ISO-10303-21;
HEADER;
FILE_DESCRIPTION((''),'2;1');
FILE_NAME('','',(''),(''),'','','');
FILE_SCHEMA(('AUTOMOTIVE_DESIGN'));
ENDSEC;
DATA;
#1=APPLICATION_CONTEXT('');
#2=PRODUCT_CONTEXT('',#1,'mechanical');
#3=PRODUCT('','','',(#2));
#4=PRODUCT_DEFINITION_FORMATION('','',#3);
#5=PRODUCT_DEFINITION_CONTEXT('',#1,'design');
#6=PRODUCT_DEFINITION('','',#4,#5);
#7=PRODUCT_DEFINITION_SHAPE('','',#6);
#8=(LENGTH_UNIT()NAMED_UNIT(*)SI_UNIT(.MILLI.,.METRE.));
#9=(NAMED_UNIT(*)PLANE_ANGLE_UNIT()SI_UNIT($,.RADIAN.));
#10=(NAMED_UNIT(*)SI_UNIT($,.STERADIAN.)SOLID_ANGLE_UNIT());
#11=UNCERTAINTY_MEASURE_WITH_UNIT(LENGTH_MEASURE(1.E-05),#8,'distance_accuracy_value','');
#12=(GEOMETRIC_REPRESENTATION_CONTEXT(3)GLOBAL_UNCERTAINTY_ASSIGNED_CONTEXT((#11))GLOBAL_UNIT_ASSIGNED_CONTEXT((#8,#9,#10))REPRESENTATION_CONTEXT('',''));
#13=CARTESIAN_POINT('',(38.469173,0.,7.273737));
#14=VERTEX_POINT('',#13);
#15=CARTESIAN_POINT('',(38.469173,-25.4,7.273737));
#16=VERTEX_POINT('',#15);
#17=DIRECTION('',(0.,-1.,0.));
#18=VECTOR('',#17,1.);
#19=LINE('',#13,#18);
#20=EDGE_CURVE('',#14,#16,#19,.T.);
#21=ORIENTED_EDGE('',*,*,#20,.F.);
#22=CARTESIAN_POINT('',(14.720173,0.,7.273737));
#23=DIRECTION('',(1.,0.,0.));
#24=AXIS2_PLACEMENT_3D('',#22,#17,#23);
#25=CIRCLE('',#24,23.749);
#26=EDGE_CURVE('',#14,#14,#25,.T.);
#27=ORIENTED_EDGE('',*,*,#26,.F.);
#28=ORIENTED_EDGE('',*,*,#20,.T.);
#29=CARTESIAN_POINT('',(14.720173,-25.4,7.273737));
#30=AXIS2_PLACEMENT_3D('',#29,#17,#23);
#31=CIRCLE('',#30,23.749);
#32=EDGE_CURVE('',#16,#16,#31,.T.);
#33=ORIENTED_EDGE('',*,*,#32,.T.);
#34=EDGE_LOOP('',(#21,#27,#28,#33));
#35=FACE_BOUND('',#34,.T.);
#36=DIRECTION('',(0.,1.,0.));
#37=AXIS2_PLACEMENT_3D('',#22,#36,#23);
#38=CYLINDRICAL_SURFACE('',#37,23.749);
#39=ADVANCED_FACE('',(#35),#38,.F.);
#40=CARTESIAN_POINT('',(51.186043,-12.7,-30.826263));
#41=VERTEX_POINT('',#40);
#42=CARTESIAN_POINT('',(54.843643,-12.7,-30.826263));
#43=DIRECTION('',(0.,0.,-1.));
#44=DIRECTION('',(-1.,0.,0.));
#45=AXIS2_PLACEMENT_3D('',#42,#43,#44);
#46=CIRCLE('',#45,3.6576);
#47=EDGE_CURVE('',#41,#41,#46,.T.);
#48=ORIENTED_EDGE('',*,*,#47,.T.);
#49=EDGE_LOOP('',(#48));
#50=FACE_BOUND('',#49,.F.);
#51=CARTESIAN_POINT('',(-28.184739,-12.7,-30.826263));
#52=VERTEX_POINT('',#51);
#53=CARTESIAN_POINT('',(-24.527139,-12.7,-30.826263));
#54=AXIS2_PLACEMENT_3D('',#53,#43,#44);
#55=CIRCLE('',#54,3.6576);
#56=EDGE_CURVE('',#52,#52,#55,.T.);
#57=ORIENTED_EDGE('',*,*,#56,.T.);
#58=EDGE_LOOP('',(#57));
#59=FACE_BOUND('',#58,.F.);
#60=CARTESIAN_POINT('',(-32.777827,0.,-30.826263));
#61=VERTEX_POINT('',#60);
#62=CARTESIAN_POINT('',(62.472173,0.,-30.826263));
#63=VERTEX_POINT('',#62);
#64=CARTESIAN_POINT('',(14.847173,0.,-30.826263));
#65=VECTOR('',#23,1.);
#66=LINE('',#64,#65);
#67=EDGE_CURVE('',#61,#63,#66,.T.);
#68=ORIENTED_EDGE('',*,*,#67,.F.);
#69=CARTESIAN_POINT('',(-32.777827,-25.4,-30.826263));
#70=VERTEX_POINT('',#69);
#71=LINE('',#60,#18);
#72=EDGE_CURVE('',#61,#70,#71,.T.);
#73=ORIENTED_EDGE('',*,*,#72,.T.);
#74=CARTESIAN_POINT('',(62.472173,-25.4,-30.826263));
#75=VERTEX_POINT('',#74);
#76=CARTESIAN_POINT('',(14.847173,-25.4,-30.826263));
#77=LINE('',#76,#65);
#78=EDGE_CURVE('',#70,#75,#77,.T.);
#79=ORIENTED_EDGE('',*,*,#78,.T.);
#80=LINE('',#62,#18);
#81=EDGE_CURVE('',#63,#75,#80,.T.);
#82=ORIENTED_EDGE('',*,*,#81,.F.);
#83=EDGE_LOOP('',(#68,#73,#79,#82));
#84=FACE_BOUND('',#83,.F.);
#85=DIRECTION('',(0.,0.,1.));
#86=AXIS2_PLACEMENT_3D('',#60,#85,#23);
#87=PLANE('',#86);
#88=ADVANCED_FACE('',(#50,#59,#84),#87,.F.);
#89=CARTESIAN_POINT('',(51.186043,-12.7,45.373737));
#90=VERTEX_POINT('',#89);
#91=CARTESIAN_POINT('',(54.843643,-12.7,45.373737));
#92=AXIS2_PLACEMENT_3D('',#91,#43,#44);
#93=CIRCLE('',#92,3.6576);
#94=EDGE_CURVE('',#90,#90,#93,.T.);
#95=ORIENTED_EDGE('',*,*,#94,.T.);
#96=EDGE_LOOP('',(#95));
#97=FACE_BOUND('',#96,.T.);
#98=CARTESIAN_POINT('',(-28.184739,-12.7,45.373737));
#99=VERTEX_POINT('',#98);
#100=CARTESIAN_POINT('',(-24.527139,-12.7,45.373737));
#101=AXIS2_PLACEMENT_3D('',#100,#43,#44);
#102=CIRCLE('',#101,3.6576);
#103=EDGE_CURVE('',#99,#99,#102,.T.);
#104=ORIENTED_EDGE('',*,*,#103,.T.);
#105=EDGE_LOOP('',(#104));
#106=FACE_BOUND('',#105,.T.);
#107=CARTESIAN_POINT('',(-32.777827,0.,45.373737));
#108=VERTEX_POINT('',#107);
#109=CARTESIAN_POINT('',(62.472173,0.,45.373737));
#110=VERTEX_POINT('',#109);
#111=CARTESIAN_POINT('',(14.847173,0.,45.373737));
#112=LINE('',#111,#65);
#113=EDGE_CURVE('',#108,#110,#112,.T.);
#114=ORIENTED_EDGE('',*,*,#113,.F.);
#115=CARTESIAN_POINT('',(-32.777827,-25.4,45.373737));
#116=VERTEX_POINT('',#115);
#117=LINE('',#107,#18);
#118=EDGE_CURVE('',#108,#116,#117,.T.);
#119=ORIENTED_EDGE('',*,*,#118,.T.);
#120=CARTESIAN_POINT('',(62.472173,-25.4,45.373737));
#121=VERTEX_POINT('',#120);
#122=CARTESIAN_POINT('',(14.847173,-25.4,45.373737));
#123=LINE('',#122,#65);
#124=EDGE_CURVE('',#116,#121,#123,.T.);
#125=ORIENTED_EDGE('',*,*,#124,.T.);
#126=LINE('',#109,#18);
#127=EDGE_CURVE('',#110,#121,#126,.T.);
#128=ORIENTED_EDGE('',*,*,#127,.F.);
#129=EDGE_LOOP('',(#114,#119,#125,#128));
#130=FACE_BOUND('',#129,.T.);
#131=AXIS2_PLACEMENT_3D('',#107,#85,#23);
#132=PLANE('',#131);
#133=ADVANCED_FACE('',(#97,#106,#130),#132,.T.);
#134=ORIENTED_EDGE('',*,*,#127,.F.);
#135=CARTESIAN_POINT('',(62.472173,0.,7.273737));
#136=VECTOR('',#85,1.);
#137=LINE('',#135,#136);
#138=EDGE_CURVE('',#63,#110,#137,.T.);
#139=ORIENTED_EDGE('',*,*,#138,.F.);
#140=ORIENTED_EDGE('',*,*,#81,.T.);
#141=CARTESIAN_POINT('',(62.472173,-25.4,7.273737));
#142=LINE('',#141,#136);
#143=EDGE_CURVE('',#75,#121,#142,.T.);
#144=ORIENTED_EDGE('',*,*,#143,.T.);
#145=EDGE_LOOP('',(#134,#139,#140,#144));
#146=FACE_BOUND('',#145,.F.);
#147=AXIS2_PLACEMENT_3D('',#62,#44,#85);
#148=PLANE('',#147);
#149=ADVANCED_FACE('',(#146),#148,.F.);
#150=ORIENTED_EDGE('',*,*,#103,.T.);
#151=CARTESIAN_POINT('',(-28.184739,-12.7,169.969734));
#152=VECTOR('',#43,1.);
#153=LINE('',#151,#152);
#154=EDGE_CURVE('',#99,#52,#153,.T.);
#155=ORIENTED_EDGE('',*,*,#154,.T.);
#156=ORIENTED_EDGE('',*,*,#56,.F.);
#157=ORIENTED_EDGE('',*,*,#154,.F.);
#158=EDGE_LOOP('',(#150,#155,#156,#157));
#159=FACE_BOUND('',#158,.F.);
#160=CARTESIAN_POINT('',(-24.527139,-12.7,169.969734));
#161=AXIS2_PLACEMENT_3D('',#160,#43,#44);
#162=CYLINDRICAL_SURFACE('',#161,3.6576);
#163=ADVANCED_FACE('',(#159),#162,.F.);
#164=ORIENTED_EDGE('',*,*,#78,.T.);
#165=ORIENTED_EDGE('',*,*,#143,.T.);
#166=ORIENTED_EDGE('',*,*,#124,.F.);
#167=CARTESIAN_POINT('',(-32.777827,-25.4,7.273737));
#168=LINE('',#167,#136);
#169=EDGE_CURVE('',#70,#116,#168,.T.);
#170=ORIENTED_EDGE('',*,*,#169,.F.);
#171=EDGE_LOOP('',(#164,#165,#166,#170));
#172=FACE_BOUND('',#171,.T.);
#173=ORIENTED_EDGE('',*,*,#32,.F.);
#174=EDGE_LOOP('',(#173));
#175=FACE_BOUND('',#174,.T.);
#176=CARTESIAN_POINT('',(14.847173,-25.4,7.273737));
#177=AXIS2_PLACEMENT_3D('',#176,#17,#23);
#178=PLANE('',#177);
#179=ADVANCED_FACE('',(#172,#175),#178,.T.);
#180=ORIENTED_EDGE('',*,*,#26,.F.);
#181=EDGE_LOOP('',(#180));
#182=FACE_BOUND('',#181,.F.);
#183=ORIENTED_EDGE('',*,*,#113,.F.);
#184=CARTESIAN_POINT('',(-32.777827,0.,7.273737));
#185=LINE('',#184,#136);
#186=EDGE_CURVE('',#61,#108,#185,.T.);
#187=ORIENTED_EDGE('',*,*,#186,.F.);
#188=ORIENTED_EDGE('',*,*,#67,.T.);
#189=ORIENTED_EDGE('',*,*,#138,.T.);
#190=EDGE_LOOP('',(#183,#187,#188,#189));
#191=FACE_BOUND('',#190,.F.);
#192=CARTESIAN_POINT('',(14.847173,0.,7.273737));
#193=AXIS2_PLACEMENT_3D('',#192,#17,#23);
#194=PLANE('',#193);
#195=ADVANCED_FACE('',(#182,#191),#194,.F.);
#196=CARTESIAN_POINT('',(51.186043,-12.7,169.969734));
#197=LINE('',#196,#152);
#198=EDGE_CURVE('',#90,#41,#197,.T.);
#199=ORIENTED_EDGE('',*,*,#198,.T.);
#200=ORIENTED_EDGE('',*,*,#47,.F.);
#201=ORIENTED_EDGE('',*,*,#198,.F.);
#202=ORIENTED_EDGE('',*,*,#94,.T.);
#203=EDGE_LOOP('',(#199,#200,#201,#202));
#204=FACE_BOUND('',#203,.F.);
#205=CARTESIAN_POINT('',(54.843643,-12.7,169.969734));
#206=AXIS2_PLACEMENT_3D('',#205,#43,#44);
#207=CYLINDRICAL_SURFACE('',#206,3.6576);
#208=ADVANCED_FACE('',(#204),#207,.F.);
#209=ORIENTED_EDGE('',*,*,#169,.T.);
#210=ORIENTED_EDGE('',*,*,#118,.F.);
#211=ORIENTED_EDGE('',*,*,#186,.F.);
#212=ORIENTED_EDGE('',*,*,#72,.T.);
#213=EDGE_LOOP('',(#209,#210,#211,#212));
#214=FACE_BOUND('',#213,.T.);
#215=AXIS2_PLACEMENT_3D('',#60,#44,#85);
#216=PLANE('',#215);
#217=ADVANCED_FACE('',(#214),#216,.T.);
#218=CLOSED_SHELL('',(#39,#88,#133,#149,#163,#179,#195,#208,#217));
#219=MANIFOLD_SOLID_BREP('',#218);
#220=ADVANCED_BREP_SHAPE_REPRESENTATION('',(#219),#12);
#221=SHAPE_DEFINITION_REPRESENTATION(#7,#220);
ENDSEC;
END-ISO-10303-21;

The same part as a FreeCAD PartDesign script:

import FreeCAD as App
import Part
import Sketcher
from FreeCAD import Vector
Q = App.Units.Quantity


def add_polygon(sketch, points):
    """Adds a closed chain of lines whose ends are joined by coincident constraints."""
    first, n = sketch.GeometryCount, len(points)
    for a, b in zip(points, points[1:] + points[:1]):
        sketch.addGeometry(Part.LineSegment(App.Vector(*a, 0), App.Vector(*b, 0)), False)
    for i in range(n):
        sketch.addConstraint(Sketcher.Constraint("Coincident", first + i, 2, first + (i + 1) % n, 1))

doc = App.newDocument("Part")
params = doc.addObject("Spreadsheet::Sheet", "Params")
for row, (alias, value) in enumerate([
    ("sketch1_diameter", "1.87 in"),
    ("sketch1_height", "3 in"),
    ("sketch1_width", "3.75 in"),
    ("pad1_length", "1 in"),
    ("sketch2_diameter", "0.288 in"),
    ("hole_diameter", "0.288 in"),
], start=1):
    params.set(f"A{row}", alias)
    params.set(f"B{row}", "=" + value)
    params.setAlias(f"B{row}", alias)

body = doc.addObject("PartDesign::Body", "Body")

# Sketch on XZ plane
sketch1 = body.newObject("Sketcher::SketchObject", "Sketch")
sketch1.AttachmentSupport = (doc.getObject("XZ_Plane"), [""])
sketch1.MapMode = "FlatFace"
add_polygon(sketch1, [(-32.777827, 45.373737), (-32.777827, -30.826263), (62.472173, -30.826263), (62.472173, 45.373737)])  # lines 0-3
sketch1.addGeometry(Part.Circle(Vector(14.720173, 7.273737, 0), Vector(0, 0, 1), 23.749), False)  # 4
sketch1.addConstraint([
    Sketcher.Constraint("Vertical", 0),
    Sketcher.Constraint("Horizontal", 1),
    Sketcher.Constraint("Vertical", 2),
    Sketcher.Constraint("Horizontal", 3),
    Sketcher.Constraint("Diameter", 4, Q("1.87 in")),
    Sketcher.Constraint("DistanceY", 0, 2, 0, 1, Q("3 in")),
    Sketcher.Constraint("DistanceX", 1, 1, 1, 2, Q("3.75 in")),
    Sketcher.Constraint("DistanceY", 0, 2, 4, 3, Q("1.5 in")),
    Sketcher.Constraint("DistanceX", 0, 2, 4, 3, Q("1.87 in")),
    Sketcher.Constraint("DistanceX", -1, 1, 4, 3, 14.720173),
    Sketcher.Constraint("DistanceY", -1, 1, 4, 3, 7.273737),
])
sketch1.setExpression("Constraints[8]", "Params.sketch1_diameter")
sketch1.setExpression("Constraints[9]", "Params.sketch1_height")
sketch1.setExpression("Constraints[10]", "Params.sketch1_width")
pad1 = body.newObject("PartDesign::Pad", "Pad")
pad1.Profile = sketch1
pad1.setExpression("Length", "Params.pad1_length")

# Sketch on XY plane
sketch2 = body.newObject("Sketcher::SketchObject", "Sketch001")
sketch2.AttachmentSupport = (doc.getObject("XY_Plane"), [""])
sketch2.MapMode = "FlatFace"
sketch2.AttachmentOffset = App.Placement(Vector(0, 0, 45.373737), App.Rotation())
sketch2.addGeometry([
    Part.Circle(Vector(-24.527139, -12.7, 0), Vector(0, 0, 1), 3.6576),
    Part.Circle(Vector(54.843643, -12.7, 0), Vector(0, 0, 1), 3.6576),
], False)
sketch2.addConstraint([
    Sketcher.Constraint("Equal", 0, 1),
    Sketcher.Constraint("Horizontal", 0, 3, 1, 3),
    Sketcher.Constraint("Diameter", 0, Q("0.288 in")),
    Sketcher.Constraint("DistanceY", 0, 3, -1, 1, Q("0.5 in")),
    Sketcher.Constraint("DistanceX", 0, 3, -1, 1, 24.527139),
    Sketcher.Constraint("DistanceX", 0, 3, 1, 3, 79.370782),
])
sketch2.setExpression("Constraints[2]", "Params.sketch2_diameter")
doc.recompute()
hole = body.newObject("PartDesign::Hole", "Hole")
hole.Profile = sketch2
hole.ThreadType = "None"
hole.setExpression("Diameter", "Params.hole_diameter")
hole.DepthType = "ThroughAll"

doc.recompute()
